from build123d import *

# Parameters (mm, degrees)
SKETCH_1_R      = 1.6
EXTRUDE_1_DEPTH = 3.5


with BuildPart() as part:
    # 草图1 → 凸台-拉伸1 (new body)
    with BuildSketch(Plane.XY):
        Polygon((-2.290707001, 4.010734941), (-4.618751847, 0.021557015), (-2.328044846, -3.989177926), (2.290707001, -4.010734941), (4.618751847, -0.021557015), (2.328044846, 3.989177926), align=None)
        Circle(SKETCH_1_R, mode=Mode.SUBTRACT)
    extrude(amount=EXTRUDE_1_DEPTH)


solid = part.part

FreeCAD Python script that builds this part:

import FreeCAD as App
import Part
import Sketcher

doc = App.newDocument("Part")
body = doc.addObject("PartDesign::Body", "Body")

# Sketch on XY plane
sketch1 = body.newObject("Sketcher::SketchObject", "Sketch")
sketch1.AttachmentSupport = (doc.getObject("XY_Plane"), [""])
sketch1.MapMode = "FlatFace"
sketch1.addGeometry([
    Part.LineSegment(App.Vector(-2.3, 4, 0), App.Vector(-4.6, 0, 0)),  # 0
    Part.LineSegment(App.Vector(-4.6, 0, 0), App.Vector(-2.3, -4, 0)),  # 1
    Part.LineSegment(App.Vector(-2.3, -4, 0), App.Vector(2.3, -4, 0)),  # 2
    Part.LineSegment(App.Vector(2.3, -4, 0), App.Vector(4.6, 0, 0)),  # 3
    Part.LineSegment(App.Vector(4.6, 0, 0), App.Vector(2.3, 4, 0)),  # 4
    Part.LineSegment(App.Vector(2.3, 4, 0), App.Vector(-2.3, 4, 0)),  # 5
    Part.Circle(App.Vector(0, 0, 0), App.Vector(0, 0, 1), 1.6),  # 6
], False)
sketch1.addConstraint([
    Sketcher.Constraint("Coincident", 0, 2, 1, 1),
    Sketcher.Constraint("Coincident", 1, 2, 2, 1),
    Sketcher.Constraint("Coincident", 2, 2, 3, 1),
    Sketcher.Constraint("Coincident", 3, 2, 4, 1),
    Sketcher.Constraint("Coincident", 4, 2, 5, 1),
    Sketcher.Constraint("Coincident", 5, 2, 0, 1),
    Sketcher.Constraint("Coincident", 6, 3, -1, 1),
    Sketcher.Constraint("Symmetric", 0, 2, 3, 2, -1, 1),
    Sketcher.Constraint("Symmetric", 1, 2, 4, 2, -1, 1),
    Sketcher.Constraint("Symmetric", 2, 2, 5, 2, -1, 1),
    Sketcher.Constraint("Equal", 0, 1),
    Sketcher.Constraint("Equal", 1, 2),
    Sketcher.Constraint("Diameter", 6, 3.2),
    Sketcher.Constraint("DistanceX", 0, 2, -1, 1, 4.618752),
    Sketcher.Constraint("DistanceX", 1, 2, 2, 2, 4.618752),
    Sketcher.Constraint("DistanceX", 0, 2, 2, 2, 6.909459),
    Sketcher.Constraint("DistanceY", 2, 2, 0, 2, 4.032292),
])
pad1 = body.newObject("PartDesign::Pad", "Pad")
pad1.Profile = sketch1
pad1.Length = 3.5

doc.recompute()
